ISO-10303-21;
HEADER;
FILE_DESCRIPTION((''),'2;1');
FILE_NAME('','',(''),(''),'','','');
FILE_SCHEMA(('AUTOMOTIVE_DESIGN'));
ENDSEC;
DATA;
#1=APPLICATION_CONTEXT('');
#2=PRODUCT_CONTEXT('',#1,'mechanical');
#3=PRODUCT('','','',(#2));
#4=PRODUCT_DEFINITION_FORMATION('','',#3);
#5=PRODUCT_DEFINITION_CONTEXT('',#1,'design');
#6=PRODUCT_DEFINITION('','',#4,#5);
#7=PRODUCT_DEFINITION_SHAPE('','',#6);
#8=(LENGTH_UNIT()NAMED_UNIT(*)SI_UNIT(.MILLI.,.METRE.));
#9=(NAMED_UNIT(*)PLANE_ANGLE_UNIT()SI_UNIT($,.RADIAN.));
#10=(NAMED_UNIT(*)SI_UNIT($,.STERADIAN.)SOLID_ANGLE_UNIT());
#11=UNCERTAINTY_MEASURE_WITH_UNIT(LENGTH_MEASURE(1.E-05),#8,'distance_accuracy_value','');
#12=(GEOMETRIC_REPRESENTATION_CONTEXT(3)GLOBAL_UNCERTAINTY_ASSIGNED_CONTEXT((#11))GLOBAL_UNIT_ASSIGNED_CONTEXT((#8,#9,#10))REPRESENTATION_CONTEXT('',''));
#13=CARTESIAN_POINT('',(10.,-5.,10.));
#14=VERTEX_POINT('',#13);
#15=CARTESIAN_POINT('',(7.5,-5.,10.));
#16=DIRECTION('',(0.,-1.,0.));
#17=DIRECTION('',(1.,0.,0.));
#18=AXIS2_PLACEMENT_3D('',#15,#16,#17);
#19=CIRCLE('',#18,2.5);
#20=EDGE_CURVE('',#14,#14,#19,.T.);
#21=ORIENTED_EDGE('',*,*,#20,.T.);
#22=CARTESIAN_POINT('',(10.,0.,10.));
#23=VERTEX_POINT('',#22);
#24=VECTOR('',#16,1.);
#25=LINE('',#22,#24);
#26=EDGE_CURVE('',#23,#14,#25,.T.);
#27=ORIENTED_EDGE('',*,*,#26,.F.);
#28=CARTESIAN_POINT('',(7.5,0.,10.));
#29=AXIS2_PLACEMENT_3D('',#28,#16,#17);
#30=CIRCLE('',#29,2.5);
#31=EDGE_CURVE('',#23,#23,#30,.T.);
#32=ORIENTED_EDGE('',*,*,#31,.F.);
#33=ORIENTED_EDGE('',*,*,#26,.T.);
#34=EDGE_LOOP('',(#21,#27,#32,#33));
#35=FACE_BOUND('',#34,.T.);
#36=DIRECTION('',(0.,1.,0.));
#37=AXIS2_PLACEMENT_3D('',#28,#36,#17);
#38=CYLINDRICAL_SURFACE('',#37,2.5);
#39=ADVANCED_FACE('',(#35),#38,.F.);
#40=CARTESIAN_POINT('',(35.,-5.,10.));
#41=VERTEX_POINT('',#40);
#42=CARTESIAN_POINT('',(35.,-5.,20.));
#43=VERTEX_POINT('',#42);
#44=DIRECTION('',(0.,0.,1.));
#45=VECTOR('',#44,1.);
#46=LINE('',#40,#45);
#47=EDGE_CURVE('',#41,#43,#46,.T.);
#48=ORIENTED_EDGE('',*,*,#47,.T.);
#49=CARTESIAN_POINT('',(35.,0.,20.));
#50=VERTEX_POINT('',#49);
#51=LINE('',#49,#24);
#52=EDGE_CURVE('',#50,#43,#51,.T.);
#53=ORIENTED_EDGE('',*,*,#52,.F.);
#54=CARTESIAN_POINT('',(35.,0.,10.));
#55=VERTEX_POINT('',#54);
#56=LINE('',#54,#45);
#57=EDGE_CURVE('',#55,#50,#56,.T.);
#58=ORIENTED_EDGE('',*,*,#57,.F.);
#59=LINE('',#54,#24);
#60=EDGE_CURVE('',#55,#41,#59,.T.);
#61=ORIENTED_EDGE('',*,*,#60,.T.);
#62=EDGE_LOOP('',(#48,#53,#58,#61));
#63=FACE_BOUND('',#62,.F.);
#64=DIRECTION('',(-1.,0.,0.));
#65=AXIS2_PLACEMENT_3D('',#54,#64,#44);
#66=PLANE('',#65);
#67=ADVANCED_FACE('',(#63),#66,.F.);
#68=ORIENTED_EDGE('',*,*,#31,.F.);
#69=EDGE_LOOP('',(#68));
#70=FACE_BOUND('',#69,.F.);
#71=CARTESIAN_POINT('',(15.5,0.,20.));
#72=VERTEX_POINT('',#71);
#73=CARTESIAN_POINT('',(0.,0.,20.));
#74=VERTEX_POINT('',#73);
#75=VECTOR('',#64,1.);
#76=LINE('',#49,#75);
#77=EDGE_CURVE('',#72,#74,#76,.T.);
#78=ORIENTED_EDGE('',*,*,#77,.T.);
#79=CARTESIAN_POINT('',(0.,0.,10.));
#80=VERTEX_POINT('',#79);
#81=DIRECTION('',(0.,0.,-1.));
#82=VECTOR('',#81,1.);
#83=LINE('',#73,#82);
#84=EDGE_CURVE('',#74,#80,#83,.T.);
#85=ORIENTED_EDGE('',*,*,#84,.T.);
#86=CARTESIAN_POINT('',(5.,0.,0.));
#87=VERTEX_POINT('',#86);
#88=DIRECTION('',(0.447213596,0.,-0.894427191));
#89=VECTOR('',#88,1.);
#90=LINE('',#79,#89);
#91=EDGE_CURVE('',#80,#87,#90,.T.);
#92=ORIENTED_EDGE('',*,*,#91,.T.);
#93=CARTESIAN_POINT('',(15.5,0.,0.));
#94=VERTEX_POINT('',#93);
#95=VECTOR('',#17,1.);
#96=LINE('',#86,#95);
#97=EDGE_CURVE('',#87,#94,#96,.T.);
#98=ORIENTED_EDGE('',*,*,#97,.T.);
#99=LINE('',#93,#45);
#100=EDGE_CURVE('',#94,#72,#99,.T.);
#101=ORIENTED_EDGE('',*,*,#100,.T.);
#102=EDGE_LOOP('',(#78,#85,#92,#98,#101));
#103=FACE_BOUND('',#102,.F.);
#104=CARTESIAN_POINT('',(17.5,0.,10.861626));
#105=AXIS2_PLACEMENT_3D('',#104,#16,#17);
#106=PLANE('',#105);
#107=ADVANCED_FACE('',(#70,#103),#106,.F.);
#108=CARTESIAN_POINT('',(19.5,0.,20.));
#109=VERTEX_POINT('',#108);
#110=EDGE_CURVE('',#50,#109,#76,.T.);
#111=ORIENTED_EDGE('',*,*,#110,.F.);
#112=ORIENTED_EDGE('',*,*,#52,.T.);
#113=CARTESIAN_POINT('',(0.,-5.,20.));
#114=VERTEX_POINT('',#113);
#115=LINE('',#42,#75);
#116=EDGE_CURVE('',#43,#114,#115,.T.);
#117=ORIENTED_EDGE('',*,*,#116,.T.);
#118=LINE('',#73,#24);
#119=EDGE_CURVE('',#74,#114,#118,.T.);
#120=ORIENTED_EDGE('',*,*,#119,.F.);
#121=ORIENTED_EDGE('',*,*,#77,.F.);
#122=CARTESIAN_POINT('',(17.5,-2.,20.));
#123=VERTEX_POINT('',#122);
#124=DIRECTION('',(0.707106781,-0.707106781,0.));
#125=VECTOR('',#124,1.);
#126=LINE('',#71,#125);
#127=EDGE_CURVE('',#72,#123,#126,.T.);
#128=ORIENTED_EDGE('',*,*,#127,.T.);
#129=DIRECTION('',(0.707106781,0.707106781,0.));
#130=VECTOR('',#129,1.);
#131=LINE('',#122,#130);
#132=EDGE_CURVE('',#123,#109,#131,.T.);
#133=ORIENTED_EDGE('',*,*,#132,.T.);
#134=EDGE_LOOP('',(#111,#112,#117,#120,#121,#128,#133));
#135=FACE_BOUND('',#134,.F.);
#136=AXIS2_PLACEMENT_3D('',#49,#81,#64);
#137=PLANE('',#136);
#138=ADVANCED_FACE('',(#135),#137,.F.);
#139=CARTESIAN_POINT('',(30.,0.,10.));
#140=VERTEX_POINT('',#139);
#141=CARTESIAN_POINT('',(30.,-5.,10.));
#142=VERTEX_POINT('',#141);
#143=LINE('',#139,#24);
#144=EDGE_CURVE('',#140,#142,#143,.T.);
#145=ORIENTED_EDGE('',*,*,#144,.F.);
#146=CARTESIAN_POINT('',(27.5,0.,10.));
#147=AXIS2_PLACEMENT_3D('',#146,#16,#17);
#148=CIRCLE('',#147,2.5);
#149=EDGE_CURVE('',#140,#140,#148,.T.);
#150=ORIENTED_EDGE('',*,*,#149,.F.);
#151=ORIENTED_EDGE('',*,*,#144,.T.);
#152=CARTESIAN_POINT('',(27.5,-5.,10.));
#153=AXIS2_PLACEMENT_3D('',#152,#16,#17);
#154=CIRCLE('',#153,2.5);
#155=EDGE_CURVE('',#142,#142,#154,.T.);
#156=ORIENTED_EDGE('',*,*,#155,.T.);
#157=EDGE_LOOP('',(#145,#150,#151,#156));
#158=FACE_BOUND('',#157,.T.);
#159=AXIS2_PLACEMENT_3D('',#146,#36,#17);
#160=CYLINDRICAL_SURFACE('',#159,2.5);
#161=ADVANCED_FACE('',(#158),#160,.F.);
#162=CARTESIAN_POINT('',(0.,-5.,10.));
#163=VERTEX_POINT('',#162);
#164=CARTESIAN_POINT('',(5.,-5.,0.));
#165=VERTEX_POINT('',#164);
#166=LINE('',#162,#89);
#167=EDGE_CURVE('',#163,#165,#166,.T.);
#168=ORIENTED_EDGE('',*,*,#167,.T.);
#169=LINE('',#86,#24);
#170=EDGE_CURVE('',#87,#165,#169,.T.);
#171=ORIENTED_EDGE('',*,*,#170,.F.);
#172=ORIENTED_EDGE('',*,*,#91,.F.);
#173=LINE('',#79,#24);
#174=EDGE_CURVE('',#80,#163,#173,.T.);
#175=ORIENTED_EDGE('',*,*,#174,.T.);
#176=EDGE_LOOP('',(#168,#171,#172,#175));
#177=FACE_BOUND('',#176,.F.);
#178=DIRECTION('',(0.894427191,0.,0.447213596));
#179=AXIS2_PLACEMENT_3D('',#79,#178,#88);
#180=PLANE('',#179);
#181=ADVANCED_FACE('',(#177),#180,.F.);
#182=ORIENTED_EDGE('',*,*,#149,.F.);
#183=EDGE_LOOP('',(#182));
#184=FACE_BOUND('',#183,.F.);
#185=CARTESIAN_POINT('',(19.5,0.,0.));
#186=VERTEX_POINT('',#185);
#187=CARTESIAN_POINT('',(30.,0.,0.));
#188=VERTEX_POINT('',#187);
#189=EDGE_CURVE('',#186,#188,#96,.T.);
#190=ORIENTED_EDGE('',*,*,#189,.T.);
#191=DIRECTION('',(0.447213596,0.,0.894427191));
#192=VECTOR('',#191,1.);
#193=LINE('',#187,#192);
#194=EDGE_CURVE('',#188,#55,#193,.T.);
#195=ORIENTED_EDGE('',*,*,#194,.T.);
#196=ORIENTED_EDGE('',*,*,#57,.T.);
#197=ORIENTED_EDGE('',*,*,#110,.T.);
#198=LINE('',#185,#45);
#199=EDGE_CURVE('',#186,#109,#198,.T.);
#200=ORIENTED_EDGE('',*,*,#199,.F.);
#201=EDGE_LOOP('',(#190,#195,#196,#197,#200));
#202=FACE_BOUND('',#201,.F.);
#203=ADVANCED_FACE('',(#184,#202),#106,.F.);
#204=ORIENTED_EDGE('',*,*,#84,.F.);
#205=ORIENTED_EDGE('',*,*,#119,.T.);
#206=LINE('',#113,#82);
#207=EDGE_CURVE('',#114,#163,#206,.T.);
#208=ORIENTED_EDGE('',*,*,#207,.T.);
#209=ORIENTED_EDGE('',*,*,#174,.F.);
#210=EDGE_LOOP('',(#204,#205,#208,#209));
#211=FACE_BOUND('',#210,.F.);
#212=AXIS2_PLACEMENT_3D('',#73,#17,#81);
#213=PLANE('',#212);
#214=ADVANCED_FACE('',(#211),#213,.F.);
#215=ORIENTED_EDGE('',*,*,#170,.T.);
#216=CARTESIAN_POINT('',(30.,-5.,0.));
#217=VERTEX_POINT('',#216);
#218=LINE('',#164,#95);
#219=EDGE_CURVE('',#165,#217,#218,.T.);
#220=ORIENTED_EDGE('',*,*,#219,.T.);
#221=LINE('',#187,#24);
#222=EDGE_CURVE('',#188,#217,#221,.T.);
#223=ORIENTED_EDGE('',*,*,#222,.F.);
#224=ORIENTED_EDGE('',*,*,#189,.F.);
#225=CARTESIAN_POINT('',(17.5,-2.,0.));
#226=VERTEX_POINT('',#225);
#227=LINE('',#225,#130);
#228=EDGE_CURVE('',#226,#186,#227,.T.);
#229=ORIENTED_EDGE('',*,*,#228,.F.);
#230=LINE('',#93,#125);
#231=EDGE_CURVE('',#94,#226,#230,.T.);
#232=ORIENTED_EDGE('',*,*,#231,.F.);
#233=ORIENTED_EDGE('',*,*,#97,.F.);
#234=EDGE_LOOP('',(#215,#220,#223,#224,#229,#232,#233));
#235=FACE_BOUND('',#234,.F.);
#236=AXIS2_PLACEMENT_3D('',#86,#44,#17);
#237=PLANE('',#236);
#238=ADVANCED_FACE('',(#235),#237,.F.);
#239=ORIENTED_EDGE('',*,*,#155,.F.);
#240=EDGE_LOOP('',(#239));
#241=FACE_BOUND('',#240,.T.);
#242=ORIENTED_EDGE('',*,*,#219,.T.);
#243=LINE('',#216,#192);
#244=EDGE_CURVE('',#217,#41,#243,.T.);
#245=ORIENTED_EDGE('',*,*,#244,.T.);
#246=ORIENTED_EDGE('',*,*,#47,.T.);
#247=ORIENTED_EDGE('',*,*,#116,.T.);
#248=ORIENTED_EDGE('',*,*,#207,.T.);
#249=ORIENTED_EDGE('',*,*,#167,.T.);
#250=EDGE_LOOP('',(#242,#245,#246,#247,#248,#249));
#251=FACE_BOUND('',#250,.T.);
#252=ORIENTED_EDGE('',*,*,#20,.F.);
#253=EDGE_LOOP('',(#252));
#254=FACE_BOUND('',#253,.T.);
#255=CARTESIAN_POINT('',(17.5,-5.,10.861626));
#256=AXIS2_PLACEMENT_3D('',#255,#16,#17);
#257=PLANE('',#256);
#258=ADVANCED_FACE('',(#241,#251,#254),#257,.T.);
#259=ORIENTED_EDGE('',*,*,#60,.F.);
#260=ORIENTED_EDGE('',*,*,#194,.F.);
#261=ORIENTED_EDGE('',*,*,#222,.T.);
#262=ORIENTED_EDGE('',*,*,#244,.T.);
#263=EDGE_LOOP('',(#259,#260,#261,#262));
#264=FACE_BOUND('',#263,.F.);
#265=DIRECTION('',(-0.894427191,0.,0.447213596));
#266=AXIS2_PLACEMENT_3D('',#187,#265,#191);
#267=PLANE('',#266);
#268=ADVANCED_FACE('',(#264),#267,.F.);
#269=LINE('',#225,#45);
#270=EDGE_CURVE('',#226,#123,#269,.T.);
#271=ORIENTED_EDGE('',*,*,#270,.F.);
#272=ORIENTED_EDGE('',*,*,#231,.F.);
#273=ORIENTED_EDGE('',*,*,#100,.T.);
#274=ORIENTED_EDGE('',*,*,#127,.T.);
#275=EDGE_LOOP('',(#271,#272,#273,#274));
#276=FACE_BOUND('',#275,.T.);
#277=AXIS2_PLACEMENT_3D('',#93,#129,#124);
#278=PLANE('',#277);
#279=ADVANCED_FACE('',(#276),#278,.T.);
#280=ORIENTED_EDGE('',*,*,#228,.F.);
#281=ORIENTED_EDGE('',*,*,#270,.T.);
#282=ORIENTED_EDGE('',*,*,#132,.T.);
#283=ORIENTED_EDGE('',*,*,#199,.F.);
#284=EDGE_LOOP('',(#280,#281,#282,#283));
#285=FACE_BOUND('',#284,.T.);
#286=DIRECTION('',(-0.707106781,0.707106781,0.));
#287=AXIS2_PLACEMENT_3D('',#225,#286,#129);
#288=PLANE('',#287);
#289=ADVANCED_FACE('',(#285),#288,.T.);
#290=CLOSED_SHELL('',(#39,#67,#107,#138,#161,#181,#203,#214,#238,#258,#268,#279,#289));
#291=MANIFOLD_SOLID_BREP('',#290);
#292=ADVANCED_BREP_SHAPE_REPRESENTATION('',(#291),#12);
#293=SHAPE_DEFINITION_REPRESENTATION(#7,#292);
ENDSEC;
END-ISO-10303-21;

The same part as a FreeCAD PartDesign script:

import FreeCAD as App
import Part
import Sketcher
from FreeCAD import Vector

doc = App.newDocument("Part")
body = doc.addObject("PartDesign::Body", "Body")
body.AllowCompound = True

# Sketch on XZ plane
sketch1 = body.newObject("Sketcher::SketchObject", "Sketch")
sketch1.AttachmentSupport = (doc.getObject("XZ_Plane"), [""])
sketch1.MapMode = "FlatFace"
sketch1.addGeometry(Part.Circle(Vector(27.5, 10, 0), Vector(0, 0, 1), 2.5), False)
sketch1.addGeometry(Part.Circle(Vector(7.5, 10, 0), Vector(0, 0, 1), 2.5), False)
sketch1.addConstraint(Sketcher.Constraint("Equal", 0, 1))
sketch1.addConstraint(Sketcher.Constraint("Horizontal", 0, 3, 1, 3))
sketch1.addConstraint(Sketcher.Constraint("Diameter", 0, 5.0))
sketch1.addConstraint(Sketcher.Constraint("DistanceY", -1, 1, 0, 3, 10.0))
sketch1.addConstraint(Sketcher.Constraint("DistanceX", 1, 3, 0, 3, 20.0))
sketch1.addConstraint(Sketcher.Constraint("DistanceX", -1, 1, 0, 3, 27.5))
pad1 = body.newObject("PartDesign::Pad", "Pad")
pad1.Profile = sketch1
pad1.Length = 5
body2 = doc.addObject("PartDesign::Body", "Body001")

# Sketch on XY plane
sketch2 = body2.newObject("Sketcher::SketchObject", "Sketch001")
sketch2.AttachmentSupport = (doc.getObject("XY_Plane001"), [""])
sketch2.MapMode = "FlatFace"
sketch2.addGeometry(Part.LineSegment(Vector(15.5, 0, 0), Vector(17.5, -2, 0)), False)
sketch2.addGeometry(Part.LineSegment(Vector(17.5, -2, 0), Vector(19.5, 0, 0)), False)
sketch2.addGeometry(Part.LineSegment(Vector(19.5, 0, 0), Vector(15.5, 0, 0)), False)
sketch2.addConstraint(Sketcher.Constraint("Coincident", 0, 2, 1, 1))
sketch2.addConstraint(Sketcher.Constraint("Coincident", 1, 2, 2, 1))
sketch2.addConstraint(Sketcher.Constraint("Coincident", 2, 2, 0, 1))
sketch2.addConstraint(Sketcher.Constraint("Horizontal", 2))
sketch2.addConstraint(Sketcher.Constraint("PointOnObject", 1, 2, -1))
sketch2.addConstraint(Sketcher.Constraint("Perpendicular", 0, 1))
sketch2.addConstraint(Sketcher.Constraint("Equal", 0, 1))
sketch2.addConstraint(Sketcher.Constraint("DistanceX", 2, 2, 2, 1, 4.0))
sketch2.addConstraint(Sketcher.Constraint("DistanceX", -1, 1, 0, 2, 17.5))
pad2 = body2.newObject("PartDesign::Pad", "Pad001")
pad2.Profile = sketch2
pad2.Length = 20
body3 = doc.addObject("PartDesign::Body", "Body002")

# Sketch on XZ plane
sketch3 = body3.newObject("Sketcher::SketchObject", "Sketch002")
sketch3.AttachmentSupport = (doc.getObject("XZ_Plane002"), [""])
sketch3.MapMode = "FlatFace"
sketch3.addGeometry(Part.LineSegment(Vector(0, 10, 0), Vector(5, 0, 0)), False)
sketch3.addGeometry(Part.LineSegment(Vector(5, 0, 0), Vector(30, 0, 0)), False)
sketch3.addGeometry(Part.LineSegment(Vector(30, 0, 0), Vector(35, 10, 0)), False)
sketch3.addGeometry(Part.LineSegment(Vector(35, 10, 0), Vector(35, 20, 0)), False)
sketch3.addGeometry(Part.LineSegment(Vector(35, 20, 0), Vector(0, 20, 0)), False)
sketch3.addGeometry(Part.LineSegment(Vector(0, 20, 0), Vector(0, 10, 0)), False)
sketch3.addConstraint(Sketcher.Constraint("Coincident", 0, 2, 1, 1))
sketch3.addConstraint(Sketcher.Constraint("Coincident", 1, 2, 2, 1))
sketch3.addConstraint(Sketcher.Constraint("Coincident", 2, 2, 3, 1))
sketch3.addConstraint(Sketcher.Constraint("Coincident", 3, 2, 4, 1))
sketch3.addConstraint(Sketcher.Constraint("Coincident", 4, 2, 5, 1))
sketch3.addConstraint(Sketcher.Constraint("Coincident", 5, 2, 0, 1))
sketch3.addConstraint(Sketcher.Constraint("Horizontal", 1))
sketch3.addConstraint(Sketcher.Constraint("Vertical", 3))
sketch3.addConstraint(Sketcher.Constraint("Horizontal", 4))
sketch3.addConstraint(Sketcher.Constraint("Vertical", 5))
sketch3.addConstraint(Sketcher.Constraint("PointOnObject", 0, 2, -1))
sketch3.addConstraint(Sketcher.Constraint("PointOnObject", 4, 2, -2))
sketch3.addConstraint(Sketcher.Constraint("Horizontal", 2, 2, 5, 2))
sketch3.addConstraint(Sketcher.Constraint("Equal", 0, 2))
sketch3.addConstraint(Sketcher.Constraint("DistanceX", 1, 1, 1, 2, 25.0))
sketch3.addConstraint(Sketcher.Constraint("DistanceX", 4, 2, 4, 1, 35.0))
sketch3.addConstraint(Sketcher.Constraint("DistanceY", 3, 1, 3, 2, 10.0))
sketch3.addConstraint(Sketcher.Constraint("DistanceY", -1, 1, 2, 2, 10.0))
pad3 = body3.newObject("PartDesign::Pad", "Pad002")
pad3.Profile = sketch3
pad3.Length = 5
doc.recompute()

boolean = body3.newObject("PartDesign::Boolean", "Boolean")
boolean.Type = "Cut"
boolean.addObjects([body2])
doc.recompute()

boolean2 = body3.newObject("PartDesign::Boolean", "Boolean001")
boolean2.Type = "Cut"
boolean2.addObjects([body])

doc.recompute()
